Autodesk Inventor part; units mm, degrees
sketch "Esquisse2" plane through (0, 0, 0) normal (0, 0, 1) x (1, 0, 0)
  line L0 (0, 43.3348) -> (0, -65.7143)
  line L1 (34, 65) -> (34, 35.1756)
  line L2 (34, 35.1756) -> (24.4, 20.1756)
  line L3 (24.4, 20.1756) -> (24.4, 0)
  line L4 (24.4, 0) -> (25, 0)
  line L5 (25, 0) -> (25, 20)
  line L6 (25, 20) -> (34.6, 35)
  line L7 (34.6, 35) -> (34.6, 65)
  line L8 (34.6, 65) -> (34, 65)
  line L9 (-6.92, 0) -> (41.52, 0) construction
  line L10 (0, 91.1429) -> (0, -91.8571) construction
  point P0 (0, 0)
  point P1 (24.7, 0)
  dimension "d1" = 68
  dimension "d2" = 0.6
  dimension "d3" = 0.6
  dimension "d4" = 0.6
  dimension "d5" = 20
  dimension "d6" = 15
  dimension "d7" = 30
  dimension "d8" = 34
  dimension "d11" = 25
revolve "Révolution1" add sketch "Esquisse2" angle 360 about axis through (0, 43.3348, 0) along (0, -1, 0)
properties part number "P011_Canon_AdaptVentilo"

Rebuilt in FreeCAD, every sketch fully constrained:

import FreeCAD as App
import Part
import Sketcher
Q = App.Units.Quantity


def add_polygon(sketch, points):
    """Adds a closed chain of lines whose ends are joined by coincident constraints."""
    first, n = sketch.GeometryCount, len(points)
    for a, b in zip(points, points[1:] + points[:1]):
        sketch.addGeometry(Part.LineSegment(App.Vector(*a, 0), App.Vector(*b, 0)), False)
    for i in range(n):
        sketch.addConstraint(Sketcher.Constraint("Coincident", first + i, 2, first + (i + 1) % n, 1))

doc = App.newDocument("Part")
body = doc.addObject("PartDesign::Body", "Body")

sketch1 = body.newObject("Sketcher::SketchObject", "Sketch")
sketch1.AttachmentSupport = (doc.getObject("XY_Plane"), [""])
sketch1.MapMode = "FlatFace"
add_polygon(sketch1, [(34.6, 65), (34, 65), (34, 35.2), (24.4, 20.2), (24.4, 0), (25, 0), (25, 20), (34.6, 35)])
sketch1.addConstraint(Sketcher.Constraint("Horizontal", 0))
sketch1.addConstraint(Sketcher.Constraint("Vertical", 1))
sketch1.addConstraint(Sketcher.Constraint("Vertical", 3))
sketch1.addConstraint(Sketcher.Constraint("Horizontal", 4))
sketch1.addConstraint(Sketcher.Constraint("Vertical", 5))
sketch1.addConstraint(Sketcher.Constraint("Vertical", 7))
sketch1.addConstraint(Sketcher.Constraint("PointOnObject", 3, 2, -1))
sketch1.addConstraint(Sketcher.Constraint("Parallel", 2, 6))
sketch1.addConstraint(Sketcher.Constraint("Equal", 0, 4))
sketch1.addConstraint(Sketcher.Constraint("DistanceY", 5, 1, 5, 2, Q("20 mm")))
sketch1.addConstraint(Sketcher.Constraint("DistanceY", 7, 1, 7, 2, Q("30 mm")))
sketch1.addConstraint(Sketcher.Constraint("DistanceX", 0, 2, 0, 1, Q("0.6 mm")))
sketch1.addConstraint(Sketcher.Constraint("DistanceX", -1, 1, 0, 2, Q("34 mm")))
sketch1.addConstraint(Sketcher.Constraint("DistanceX", -1, 1, 4, 2, Q("25 mm")))
sketch1.addConstraint(Sketcher.Constraint("DistanceY", 2, 2, 1, 2, Q("15 mm")))
sketch1.addConstraint(Sketcher.Constraint("DistanceY", 1, 2, 1, 1, Q("29.8244 mm")))
revolution = body.newObject("PartDesign::Revolution", "Revolution")
revolution.Profile = sketch1
revolution.ReferenceAxis = (sketch1, ["V_Axis"])
revolution.Angle = 360

doc.recompute()
